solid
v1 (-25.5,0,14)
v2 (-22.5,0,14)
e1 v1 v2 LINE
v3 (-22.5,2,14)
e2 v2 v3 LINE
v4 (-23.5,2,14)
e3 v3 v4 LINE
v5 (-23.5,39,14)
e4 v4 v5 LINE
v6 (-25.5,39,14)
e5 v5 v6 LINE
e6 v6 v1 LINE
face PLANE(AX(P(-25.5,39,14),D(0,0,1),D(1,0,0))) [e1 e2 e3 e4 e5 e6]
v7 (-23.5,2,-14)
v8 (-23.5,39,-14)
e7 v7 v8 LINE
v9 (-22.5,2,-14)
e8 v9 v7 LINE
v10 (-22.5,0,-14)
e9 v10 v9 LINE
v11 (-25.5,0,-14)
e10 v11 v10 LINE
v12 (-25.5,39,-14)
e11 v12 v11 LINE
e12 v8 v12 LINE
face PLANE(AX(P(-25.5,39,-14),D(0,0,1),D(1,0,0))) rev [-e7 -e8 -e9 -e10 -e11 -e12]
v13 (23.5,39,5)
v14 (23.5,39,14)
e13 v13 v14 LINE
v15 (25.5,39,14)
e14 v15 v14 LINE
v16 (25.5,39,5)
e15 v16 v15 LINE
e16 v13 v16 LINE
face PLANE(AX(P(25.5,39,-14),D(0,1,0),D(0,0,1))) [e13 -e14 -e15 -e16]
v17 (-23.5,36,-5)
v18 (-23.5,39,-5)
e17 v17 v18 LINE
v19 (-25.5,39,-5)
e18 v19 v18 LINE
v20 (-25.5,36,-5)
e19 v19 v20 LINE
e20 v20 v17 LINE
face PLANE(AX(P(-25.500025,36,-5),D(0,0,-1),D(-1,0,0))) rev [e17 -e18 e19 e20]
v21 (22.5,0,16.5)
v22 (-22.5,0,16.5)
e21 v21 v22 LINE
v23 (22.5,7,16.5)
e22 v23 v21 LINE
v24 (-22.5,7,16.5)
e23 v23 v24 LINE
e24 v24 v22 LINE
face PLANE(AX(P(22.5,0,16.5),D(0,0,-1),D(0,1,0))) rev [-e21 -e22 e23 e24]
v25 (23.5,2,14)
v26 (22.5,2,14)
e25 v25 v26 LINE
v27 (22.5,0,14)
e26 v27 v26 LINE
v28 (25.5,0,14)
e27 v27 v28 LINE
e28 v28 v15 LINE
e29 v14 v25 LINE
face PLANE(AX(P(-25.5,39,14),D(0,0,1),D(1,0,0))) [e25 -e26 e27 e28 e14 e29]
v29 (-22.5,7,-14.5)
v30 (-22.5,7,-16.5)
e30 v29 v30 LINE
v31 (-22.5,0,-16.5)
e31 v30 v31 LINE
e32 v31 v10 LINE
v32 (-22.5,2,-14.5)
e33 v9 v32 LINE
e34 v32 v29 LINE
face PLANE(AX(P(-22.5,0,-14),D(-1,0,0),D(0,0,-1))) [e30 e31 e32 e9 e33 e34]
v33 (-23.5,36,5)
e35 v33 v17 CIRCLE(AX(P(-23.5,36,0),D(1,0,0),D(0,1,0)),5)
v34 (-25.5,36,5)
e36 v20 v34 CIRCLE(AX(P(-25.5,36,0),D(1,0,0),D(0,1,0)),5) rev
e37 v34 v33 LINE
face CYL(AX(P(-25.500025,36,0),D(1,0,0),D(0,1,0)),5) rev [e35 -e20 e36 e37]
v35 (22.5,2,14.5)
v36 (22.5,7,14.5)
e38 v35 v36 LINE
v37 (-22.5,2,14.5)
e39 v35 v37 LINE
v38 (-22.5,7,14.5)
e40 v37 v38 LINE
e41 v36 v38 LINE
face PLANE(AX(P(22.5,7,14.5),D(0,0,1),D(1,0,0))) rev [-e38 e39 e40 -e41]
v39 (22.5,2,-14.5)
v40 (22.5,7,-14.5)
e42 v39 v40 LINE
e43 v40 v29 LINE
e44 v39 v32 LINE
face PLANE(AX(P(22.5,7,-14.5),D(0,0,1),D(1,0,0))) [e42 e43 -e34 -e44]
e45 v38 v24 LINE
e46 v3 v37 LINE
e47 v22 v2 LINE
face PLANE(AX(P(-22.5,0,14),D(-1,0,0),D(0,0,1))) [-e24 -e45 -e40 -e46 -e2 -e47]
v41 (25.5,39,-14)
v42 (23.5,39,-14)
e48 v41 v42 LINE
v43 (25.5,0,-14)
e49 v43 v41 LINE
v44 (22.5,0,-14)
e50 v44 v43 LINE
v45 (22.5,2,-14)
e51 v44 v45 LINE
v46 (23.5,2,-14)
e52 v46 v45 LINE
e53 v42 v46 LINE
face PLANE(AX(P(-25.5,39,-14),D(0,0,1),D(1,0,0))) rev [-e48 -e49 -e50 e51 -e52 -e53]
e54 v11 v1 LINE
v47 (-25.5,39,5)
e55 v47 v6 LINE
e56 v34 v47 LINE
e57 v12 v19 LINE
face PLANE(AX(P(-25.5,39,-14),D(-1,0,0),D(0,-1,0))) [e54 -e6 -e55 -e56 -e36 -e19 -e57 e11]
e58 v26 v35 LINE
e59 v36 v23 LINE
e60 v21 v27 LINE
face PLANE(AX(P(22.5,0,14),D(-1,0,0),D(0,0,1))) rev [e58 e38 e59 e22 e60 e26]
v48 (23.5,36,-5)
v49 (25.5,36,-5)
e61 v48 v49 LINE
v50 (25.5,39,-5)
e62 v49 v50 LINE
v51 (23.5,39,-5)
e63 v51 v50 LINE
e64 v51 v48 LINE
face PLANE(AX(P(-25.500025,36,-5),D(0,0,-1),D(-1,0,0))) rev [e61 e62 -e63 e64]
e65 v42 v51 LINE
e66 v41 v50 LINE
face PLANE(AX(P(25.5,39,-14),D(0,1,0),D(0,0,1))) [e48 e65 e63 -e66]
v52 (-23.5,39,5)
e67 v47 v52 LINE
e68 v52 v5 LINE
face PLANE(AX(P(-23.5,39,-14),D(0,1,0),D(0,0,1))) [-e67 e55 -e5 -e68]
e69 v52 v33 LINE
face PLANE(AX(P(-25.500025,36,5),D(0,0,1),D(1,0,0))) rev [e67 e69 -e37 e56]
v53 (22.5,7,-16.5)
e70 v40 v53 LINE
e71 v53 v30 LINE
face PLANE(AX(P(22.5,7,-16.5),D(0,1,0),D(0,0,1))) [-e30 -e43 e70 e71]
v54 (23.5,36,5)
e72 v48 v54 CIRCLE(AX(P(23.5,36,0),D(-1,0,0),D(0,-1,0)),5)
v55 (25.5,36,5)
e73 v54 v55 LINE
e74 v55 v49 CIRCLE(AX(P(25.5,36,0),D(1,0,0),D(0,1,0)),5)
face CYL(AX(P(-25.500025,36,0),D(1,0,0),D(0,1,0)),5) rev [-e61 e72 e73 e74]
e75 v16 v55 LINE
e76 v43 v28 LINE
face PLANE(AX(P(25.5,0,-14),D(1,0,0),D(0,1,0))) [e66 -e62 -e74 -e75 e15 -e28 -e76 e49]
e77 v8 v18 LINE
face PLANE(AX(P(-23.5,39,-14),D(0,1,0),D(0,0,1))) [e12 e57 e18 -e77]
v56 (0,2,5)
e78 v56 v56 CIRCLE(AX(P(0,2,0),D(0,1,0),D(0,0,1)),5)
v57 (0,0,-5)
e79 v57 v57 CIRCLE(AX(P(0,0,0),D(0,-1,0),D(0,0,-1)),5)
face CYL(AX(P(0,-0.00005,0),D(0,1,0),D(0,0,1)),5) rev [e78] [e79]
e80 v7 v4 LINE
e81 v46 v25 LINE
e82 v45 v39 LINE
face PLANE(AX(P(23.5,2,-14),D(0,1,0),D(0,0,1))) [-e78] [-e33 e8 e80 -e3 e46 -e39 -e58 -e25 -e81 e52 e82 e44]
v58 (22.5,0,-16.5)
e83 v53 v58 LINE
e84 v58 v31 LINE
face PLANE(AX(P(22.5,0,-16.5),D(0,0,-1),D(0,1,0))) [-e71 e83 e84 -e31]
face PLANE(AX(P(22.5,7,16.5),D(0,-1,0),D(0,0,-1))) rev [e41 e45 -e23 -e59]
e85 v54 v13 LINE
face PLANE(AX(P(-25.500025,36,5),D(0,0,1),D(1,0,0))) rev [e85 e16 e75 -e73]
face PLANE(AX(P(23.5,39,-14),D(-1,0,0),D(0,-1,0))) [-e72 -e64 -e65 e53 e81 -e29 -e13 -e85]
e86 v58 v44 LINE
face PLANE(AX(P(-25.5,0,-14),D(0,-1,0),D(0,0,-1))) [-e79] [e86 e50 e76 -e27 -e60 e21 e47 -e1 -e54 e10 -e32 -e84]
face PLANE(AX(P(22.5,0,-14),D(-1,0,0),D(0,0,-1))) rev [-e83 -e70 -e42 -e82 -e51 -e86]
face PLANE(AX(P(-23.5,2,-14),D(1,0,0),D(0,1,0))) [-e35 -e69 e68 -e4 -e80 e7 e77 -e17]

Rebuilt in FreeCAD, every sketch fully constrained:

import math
import FreeCAD as App
import Part
import Sketcher
Q = App.Units.Quantity

doc = App.newDocument("Part")
params = doc.addObject("Spreadsheet::Sheet", "Params")
for row, (alias, value) in enumerate([
    ("sketch1_width", "51 mm"),
    ("sketch1_width2", "2 mm"),
    ("sketch1_height", "39 mm"),
    ("sketch1_height2", "37 mm"),
    ("pad1_length", "28 mm"),
    ("sketch2_width", "2 mm"),
    ("sketch2_width2", "5 mm"),
    ("sketch2_height", "2.5 mm"),
    ("pad2_length", "45 mm"),
    ("sketch3_radius", "5 mm"),
    ("sketch3_width", "3 mm"),
    ("sketch4_diameter", "10 mm"),
], start=1):
    params.set(f"A{row}", alias)
    params.set(f"B{row}", "=" + value)
    params.setAlias(f"B{row}", alias)

body = doc.addObject("PartDesign::Body", "Body")

# Sketch on XY plane
sketch1 = body.newObject("Sketcher::SketchObject", "Sketch")
sketch1.AttachmentSupport = (doc.getObject("XY_Plane"), [""])
sketch1.MapMode = "FlatFace"
sketch1.addGeometry(Part.LineSegment(App.Vector(-25.5, 39, 0), App.Vector(-25.5, 0, 0)), False)
sketch1.addGeometry(Part.LineSegment(App.Vector(-25.5, 0, 0), App.Vector(25.5, 0, 0)), False)
sketch1.addGeometry(Part.LineSegment(App.Vector(25.5, 0, 0), App.Vector(25.5, 39, 0)), False)
sketch1.addGeometry(Part.LineSegment(App.Vector(25.5, 39, 0), App.Vector(23.5, 39, 0)), False)
sketch1.addGeometry(Part.LineSegment(App.Vector(23.5, 39, 0), App.Vector(23.5, 2, 0)), False)
sketch1.addGeometry(Part.LineSegment(App.Vector(23.5, 2, 0), App.Vector(-23.5, 2, 0)), False)
sketch1.addGeometry(Part.LineSegment(App.Vector(-23.5, 2, 0), App.Vector(-23.5, 39, 0)), False)
sketch1.addGeometry(Part.LineSegment(App.Vector(-23.5, 39, 0), App.Vector(-25.5, 39, 0)), False)
sketch1.addConstraint(Sketcher.Constraint("Coincident", 0, 2, 1, 1))
sketch1.addConstraint(Sketcher.Constraint("Coincident", 1, 2, 2, 1))
sketch1.addConstraint(Sketcher.Constraint("Coincident", 2, 2, 3, 1))
sketch1.addConstraint(Sketcher.Constraint("Coincident", 3, 2, 4, 1))
sketch1.addConstraint(Sketcher.Constraint("Coincident", 4, 2, 5, 1))
sketch1.addConstraint(Sketcher.Constraint("Coincident", 5, 2, 6, 1))
sketch1.addConstraint(Sketcher.Constraint("Coincident", 6, 2, 7, 1))
sketch1.addConstraint(Sketcher.Constraint("Coincident", 7, 2, 0, 1))
sketch1.addConstraint(Sketcher.Constraint("Vertical", 0))
sketch1.addConstraint(Sketcher.Constraint("Horizontal", 1))
sketch1.addConstraint(Sketcher.Constraint("Vertical", 2))
sketch1.addConstraint(Sketcher.Constraint("Horizontal", 3))
sketch1.addConstraint(Sketcher.Constraint("Vertical", 4))
sketch1.addConstraint(Sketcher.Constraint("Horizontal", 5))
sketch1.addConstraint(Sketcher.Constraint("Vertical", 6))
sketch1.addConstraint(Sketcher.Constraint("Horizontal", 7))
sketch1.addConstraint(Sketcher.Constraint("Symmetric", 0, 2, 1, 2, -1, 1))
sketch1.addConstraint(Sketcher.Constraint("Symmetric", 3, 2, 6, 2, -2))
sketch1.addConstraint(Sketcher.Constraint("DistanceX", 1, 1, 1, 2, Q("51 mm")))
sketch1.addConstraint(Sketcher.Constraint("DistanceX", 3, 2, 3, 1, Q("2 mm")))
sketch1.addConstraint(Sketcher.Constraint("DistanceY", 0, 2, 0, 1, Q("39 mm")))
sketch1.addConstraint(Sketcher.Constraint("DistanceY", 4, 2, 4, 1, Q("37 mm")))
sketch1.setExpression("Constraints[18]", "Params.sketch1_width")
sketch1.setExpression("Constraints[19]", "Params.sketch1_width2")
sketch1.setExpression("Constraints[20]", "Params.sketch1_height")
sketch1.setExpression("Constraints[21]", "Params.sketch1_height2")
pad1 = body.newObject("PartDesign::Pad", "Pad")
pad1.Profile = sketch1
pad1.setExpression("Length", "Params.pad1_length")
pad1.Midplane = True

# Sketch on YZ plane
sketch2 = body.newObject("Sketcher::SketchObject", "Sketch001")
sketch2.AttachmentSupport = (doc.getObject("YZ_Plane"), [""])
sketch2.MapMode = "FlatFace"
sketch2.addGeometry(Part.LineSegment(App.Vector(0, 16.5, 0), App.Vector(0, 14, 0)), False)
sketch2.addGeometry(Part.LineSegment(App.Vector(0, 14, 0), App.Vector(2, 14, 0)), False)
sketch2.addGeometry(Part.LineSegment(App.Vector(2, 14, 0), App.Vector(2, 14.5, 0)), False)
sketch2.addGeometry(Part.LineSegment(App.Vector(2, 14.5, 0), App.Vector(7, 14.5, 0)), False)
sketch2.addGeometry(Part.LineSegment(App.Vector(7, 14.5, 0), App.Vector(7, 16.5, 0)), False)
sketch2.addGeometry(Part.LineSegment(App.Vector(7, 16.5, 0), App.Vector(0, 16.5, 0)), False)
sketch2.addConstraint(Sketcher.Constraint("Coincident", 0, 2, 1, 1))
sketch2.addConstraint(Sketcher.Constraint("Coincident", 1, 2, 2, 1))
sketch2.addConstraint(Sketcher.Constraint("Coincident", 2, 2, 3, 1))
sketch2.addConstraint(Sketcher.Constraint("Coincident", 3, 2, 4, 1))
sketch2.addConstraint(Sketcher.Constraint("Coincident", 4, 2, 5, 1))
sketch2.addConstraint(Sketcher.Constraint("Coincident", 5, 2, 0, 1))
sketch2.addConstraint(Sketcher.Constraint("Vertical", 0))
sketch2.addConstraint(Sketcher.Constraint("Horizontal", 1))
sketch2.addConstraint(Sketcher.Constraint("Vertical", 2))
sketch2.addConstraint(Sketcher.Constraint("Horizontal", 3))
sketch2.addConstraint(Sketcher.Constraint("Vertical", 4))
sketch2.addConstraint(Sketcher.Constraint("Horizontal", 5))
sketch2.addConstraint(Sketcher.Constraint("PointOnObject", 0, 2, -2))
sketch2.addConstraint(Sketcher.Constraint("Equal", 1, 4))
sketch2.addConstraint(Sketcher.Constraint("DistanceX", 1, 1, 1, 2, Q("2 mm")))
sketch2.addConstraint(Sketcher.Constraint("DistanceX", 3, 1, 3, 2, Q("5 mm")))
sketch2.addConstraint(Sketcher.Constraint("DistanceY", 0, 2, 0, 1, Q("2.5 mm")))
sketch2.addConstraint(Sketcher.Constraint("DistanceY", -1, 1, 0, 2, Q("14 mm")))
sketch2.setExpression("Constraints[14]", "Params.sketch2_width")
sketch2.setExpression("Constraints[15]", "Params.sketch2_width2")
sketch2.setExpression("Constraints[16]", "Params.sketch2_height")
pad2 = body.newObject("PartDesign::Pad", "Pad001")
pad2.Profile = sketch2
pad2.setExpression("Length", "Params.pad2_length")
pad2.Midplane = True
doc.recompute()

mirrored = body.newObject("PartDesign::Mirrored", "Mirrored")
mirrored.Originals = [pad2]
mirrored.MirrorPlane = (doc.getObject("XY_Plane"), [""])
body.Tip = mirrored

# Sketch on YZ plane
sketch3 = body.newObject("Sketcher::SketchObject", "Sketch002")
sketch3.AttachmentSupport = (doc.getObject("YZ_Plane"), [""])
sketch3.MapMode = "FlatFace"
sketch3.AttachmentOffset = App.Placement(App.Vector(0, 0, 25.5), App.Rotation())
sketch3.addGeometry(Part.LineSegment(App.Vector(39, 5, 0), App.Vector(36, 5, 0)), False)
sketch3.addGeometry(Part.ArcOfCircle(Part.Circle(App.Vector(36, 0, 0), App.Vector(0, 0, 1), 5), math.radians(90), math.radians(270)), False)
sketch3.addGeometry(Part.LineSegment(App.Vector(36, -5, 0), App.Vector(39, -5, 0)), False)
sketch3.addGeometry(Part.LineSegment(App.Vector(39, -5, 0), App.Vector(39, 5, 0)), False)
sketch3.addConstraint(Sketcher.Constraint("Tangent", 0, 2, 1, 1))
sketch3.addConstraint(Sketcher.Constraint("Tangent", 1, 2, 2, 1))
sketch3.addConstraint(Sketcher.Constraint("Coincident", 2, 2, 3, 1))
sketch3.addConstraint(Sketcher.Constraint("Coincident", 3, 2, 0, 1))
sketch3.addConstraint(Sketcher.Constraint("Horizontal", 0))
sketch3.addConstraint(Sketcher.Constraint("Horizontal", 2))
sketch3.addConstraint(Sketcher.Constraint("Vertical", 3))
sketch3.addConstraint(Sketcher.Constraint("PointOnObject", 1, 3, -1))
sketch3.addConstraint(Sketcher.Constraint("Radius", 1, Q("5 mm")))
sketch3.addConstraint(Sketcher.Constraint("DistanceX", 0, 2, 0, 1, Q("3 mm")))
sketch3.addConstraint(Sketcher.Constraint("DistanceX", -1, 1, 1, 3, Q("36 mm")))
sketch3.setExpression("Constraints[8]", "Params.sketch3_radius")
sketch3.setExpression("Constraints[9]", "Params.sketch3_width")
pocket1 = body.newObject("PartDesign::Pocket", "Pocket")
pocket1.Profile = sketch3
pocket1.Type = "ThroughAll"

# Sketch on XZ plane
sketch4 = body.newObject("Sketcher::SketchObject", "Sketch003")
sketch4.AttachmentSupport = (doc.getObject("XZ_Plane"), [""])
sketch4.MapMode = "FlatFace"
sketch4.AttachmentOffset = App.Placement(App.Vector(0, 0, -2), App.Rotation())
sketch4.addGeometry(Part.Circle(App.Vector(0, 0, 0), App.Vector(0, 0, 1), 5), False)
sketch4.addConstraint(Sketcher.Constraint("Coincident", 0, 3, -1, 1))
sketch4.addConstraint(Sketcher.Constraint("Diameter", 0, Q("10 mm")))
sketch4.setExpression("Constraints[1]", "Params.sketch4_diameter")
pocket2 = body.newObject("PartDesign::Pocket", "Pocket001")
pocket2.Profile = sketch4
pocket2.Type = "ThroughAll"
pocket2.Reversed = True

doc.recompute()
